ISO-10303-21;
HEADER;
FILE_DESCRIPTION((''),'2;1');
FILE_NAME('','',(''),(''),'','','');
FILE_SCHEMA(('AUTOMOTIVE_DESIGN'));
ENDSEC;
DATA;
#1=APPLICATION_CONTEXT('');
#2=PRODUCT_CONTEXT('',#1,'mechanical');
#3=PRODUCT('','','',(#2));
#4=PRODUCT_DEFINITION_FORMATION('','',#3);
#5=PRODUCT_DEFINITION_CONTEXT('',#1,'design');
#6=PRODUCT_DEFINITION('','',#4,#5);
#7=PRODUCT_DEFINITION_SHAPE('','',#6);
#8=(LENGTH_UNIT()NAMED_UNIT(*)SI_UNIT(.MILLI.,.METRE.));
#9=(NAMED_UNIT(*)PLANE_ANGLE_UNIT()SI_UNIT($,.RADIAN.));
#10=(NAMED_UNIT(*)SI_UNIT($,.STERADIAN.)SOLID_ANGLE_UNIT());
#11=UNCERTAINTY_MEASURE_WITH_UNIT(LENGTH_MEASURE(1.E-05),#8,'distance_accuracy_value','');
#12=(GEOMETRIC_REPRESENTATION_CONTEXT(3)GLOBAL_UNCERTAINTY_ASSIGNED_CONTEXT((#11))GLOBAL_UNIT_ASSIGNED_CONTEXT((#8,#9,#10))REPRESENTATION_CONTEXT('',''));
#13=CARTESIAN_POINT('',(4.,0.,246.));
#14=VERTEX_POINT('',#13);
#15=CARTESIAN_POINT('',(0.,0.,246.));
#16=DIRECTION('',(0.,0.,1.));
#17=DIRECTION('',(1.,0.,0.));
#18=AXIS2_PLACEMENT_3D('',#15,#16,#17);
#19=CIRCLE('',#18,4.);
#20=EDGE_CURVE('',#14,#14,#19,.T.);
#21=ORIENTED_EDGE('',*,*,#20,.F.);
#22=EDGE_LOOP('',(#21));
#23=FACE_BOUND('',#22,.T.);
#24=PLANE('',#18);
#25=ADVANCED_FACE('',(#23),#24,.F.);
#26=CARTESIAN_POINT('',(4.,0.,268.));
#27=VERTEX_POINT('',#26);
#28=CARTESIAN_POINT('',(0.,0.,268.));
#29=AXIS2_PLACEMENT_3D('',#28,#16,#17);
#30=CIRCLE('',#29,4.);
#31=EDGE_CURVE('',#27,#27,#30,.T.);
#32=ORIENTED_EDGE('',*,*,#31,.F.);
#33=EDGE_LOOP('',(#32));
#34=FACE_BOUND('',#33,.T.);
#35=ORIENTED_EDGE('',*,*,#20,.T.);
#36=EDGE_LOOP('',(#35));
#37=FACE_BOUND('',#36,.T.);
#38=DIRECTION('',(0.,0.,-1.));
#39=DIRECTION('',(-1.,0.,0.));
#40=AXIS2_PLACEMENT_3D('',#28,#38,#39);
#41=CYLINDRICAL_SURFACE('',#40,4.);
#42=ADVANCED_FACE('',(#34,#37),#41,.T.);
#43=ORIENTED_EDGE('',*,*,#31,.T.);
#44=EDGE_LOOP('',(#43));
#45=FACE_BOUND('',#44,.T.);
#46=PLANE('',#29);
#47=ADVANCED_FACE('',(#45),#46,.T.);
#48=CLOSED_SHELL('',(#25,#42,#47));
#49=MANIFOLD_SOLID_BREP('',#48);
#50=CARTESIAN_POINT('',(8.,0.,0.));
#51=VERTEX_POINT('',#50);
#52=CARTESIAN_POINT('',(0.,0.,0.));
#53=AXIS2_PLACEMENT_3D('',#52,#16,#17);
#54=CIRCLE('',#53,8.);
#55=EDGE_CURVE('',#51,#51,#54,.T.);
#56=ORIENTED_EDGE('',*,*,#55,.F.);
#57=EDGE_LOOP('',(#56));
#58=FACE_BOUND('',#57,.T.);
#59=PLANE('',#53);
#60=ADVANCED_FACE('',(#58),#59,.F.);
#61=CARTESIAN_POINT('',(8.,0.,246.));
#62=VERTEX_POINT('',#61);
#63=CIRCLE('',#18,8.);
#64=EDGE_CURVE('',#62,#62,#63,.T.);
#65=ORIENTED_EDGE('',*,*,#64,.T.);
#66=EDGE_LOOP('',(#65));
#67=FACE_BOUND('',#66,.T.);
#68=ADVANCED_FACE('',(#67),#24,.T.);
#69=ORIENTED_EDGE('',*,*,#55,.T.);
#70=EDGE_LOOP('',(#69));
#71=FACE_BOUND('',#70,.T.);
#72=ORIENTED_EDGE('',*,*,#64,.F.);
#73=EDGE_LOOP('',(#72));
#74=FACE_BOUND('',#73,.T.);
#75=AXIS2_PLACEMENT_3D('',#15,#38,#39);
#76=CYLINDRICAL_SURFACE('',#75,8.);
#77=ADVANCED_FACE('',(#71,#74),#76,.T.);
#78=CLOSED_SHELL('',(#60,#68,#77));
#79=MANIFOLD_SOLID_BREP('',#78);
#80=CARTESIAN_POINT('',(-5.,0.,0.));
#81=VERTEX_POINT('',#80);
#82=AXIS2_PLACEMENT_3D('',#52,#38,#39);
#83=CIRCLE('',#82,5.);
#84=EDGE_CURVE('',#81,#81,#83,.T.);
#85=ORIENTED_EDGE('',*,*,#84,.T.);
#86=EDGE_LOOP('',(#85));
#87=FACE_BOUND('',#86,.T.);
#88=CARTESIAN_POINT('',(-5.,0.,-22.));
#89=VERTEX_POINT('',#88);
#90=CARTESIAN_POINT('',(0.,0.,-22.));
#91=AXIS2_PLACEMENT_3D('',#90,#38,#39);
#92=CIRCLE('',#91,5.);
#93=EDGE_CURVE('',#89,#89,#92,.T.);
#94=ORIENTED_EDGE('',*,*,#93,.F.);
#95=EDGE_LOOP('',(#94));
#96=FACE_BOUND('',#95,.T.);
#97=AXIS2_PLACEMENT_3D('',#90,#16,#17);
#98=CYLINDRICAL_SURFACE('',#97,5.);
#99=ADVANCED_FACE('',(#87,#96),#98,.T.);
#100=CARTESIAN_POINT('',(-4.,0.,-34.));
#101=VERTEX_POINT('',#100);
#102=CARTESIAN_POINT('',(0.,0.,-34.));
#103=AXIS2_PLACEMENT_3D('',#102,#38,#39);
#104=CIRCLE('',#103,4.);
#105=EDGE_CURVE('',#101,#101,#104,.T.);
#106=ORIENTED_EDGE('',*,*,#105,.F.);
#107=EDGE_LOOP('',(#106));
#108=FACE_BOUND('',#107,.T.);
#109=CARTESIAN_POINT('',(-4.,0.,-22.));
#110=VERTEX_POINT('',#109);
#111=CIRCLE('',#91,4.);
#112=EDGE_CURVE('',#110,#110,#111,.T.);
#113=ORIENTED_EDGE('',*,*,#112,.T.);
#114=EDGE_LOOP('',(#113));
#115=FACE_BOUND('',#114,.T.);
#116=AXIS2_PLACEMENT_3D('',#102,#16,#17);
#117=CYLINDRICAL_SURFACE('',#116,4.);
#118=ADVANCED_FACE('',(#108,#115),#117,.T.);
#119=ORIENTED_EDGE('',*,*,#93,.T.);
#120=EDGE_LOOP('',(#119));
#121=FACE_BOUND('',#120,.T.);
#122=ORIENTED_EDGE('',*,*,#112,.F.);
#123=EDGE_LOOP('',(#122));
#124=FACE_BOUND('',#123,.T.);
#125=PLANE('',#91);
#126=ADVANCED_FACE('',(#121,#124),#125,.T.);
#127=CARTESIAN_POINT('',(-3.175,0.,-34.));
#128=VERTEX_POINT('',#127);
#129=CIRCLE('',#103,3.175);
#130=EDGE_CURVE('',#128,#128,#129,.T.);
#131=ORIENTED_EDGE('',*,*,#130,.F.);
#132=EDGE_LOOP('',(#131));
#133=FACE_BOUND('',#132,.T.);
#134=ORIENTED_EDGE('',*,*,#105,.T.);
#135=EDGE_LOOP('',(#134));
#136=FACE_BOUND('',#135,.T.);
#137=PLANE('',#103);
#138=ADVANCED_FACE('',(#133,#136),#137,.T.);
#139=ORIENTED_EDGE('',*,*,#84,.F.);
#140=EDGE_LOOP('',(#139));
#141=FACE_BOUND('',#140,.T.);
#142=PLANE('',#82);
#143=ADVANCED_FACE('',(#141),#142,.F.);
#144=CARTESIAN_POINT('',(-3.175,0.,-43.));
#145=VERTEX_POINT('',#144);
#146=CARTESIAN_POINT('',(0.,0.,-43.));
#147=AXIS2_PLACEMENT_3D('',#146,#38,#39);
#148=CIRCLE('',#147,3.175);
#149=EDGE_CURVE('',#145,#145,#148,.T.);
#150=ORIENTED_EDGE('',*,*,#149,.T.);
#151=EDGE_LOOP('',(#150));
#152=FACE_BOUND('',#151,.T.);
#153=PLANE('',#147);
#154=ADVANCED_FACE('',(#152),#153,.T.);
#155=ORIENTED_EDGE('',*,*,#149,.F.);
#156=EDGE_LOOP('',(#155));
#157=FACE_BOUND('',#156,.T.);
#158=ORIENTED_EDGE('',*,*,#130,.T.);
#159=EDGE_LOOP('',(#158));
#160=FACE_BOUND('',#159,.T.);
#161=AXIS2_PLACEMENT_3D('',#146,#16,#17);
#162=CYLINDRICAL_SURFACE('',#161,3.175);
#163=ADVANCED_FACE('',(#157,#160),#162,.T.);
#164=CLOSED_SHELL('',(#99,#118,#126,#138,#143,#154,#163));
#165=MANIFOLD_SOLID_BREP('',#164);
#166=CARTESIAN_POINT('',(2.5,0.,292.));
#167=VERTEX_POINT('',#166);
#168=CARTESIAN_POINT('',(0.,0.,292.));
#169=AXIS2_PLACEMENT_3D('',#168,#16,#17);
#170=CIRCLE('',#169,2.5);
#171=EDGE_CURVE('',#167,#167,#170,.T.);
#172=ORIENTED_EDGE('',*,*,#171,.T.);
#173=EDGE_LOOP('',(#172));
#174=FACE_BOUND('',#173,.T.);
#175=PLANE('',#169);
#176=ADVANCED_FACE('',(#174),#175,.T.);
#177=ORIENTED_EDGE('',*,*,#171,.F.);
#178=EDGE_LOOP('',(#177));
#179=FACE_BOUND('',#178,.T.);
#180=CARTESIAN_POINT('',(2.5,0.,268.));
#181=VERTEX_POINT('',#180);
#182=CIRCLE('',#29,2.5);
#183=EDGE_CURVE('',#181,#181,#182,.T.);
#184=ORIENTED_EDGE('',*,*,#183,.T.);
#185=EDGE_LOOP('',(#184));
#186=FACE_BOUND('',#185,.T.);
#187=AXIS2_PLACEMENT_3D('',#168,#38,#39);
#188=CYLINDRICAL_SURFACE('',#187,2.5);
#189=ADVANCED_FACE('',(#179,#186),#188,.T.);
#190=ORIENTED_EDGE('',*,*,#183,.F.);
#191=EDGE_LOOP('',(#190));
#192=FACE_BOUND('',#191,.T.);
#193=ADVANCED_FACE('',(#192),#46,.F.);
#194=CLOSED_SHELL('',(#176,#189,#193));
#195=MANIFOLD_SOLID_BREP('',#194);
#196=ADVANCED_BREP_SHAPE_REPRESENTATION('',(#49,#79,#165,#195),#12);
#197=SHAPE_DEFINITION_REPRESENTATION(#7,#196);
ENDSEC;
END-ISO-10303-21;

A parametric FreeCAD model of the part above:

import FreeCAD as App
import Part
import Sketcher
Q = App.Units.Quantity

doc = App.newDocument("Part")
body = doc.addObject("PartDesign::Body", "Body")

sketch1 = doc.addObject("Sketcher::SketchObject", "Sketch")
body.addObject(sketch1)
sketch1.AttachmentSupport = (doc.XY_Plane, [""])
sketch1.MapMode = "FlatFace"
sketch1.addGeometry(Part.Circle(App.Vector(0, 0, 0), App.Vector(0, 0, 1), 8), False)
sketch1.addConstraint([
    Sketcher.Constraint("Coincident", 0, 3, -1, 1),
    Sketcher.Constraint("Diameter", 0, Q("16 mm")),
])
pad1 = doc.addObject("PartDesign::Pad", "Pad")
body.addObject(pad1)
pad1.Profile = sketch1
pad1.Length = 246
body2 = doc.addObject("PartDesign::Body", "Body001")

sketch2 = doc.addObject("Sketcher::SketchObject", "Sketch001")
body2.addObject(sketch2)
sketch2.AttachmentSupport = (doc.getObject("XY_Plane001"), [""])
sketch2.MapMode = "FlatFace"
sketch2.AttachmentOffset = App.Placement(App.Vector(0, 0, 246), App.Rotation())
sketch2.addGeometry(Part.Circle(App.Vector(0, 0, 0), App.Vector(0, 0, 1), 4), False)
sketch2.addConstraint([
    Sketcher.Constraint("Coincident", 0, 3, -1, 1),
    Sketcher.Constraint("Diameter", 0, Q("8 mm")),
])
pad2 = doc.addObject("PartDesign::Pad", "Pad001")
body2.addObject(pad2)
pad2.Profile = sketch2
pad2.Length = 22
body3 = doc.addObject("PartDesign::Body", "Body002")

sketch3 = doc.addObject("Sketcher::SketchObject", "Sketch002")
body3.addObject(sketch3)
sketch3.AttachmentSupport = (doc.getObject("XY_Plane002"), [""])
sketch3.MapMode = "FlatFace"
sketch3.addGeometry(Part.Circle(App.Vector(0, 0, 0), App.Vector(0, 0, 1), 5), False)
sketch3.addConstraint([
    Sketcher.Constraint("Coincident", 0, 3, -1, 1),
    Sketcher.Constraint("Diameter", 0, Q("10 mm")),
])
pad3 = doc.addObject("PartDesign::Pad", "Pad002")
body3.addObject(pad3)
pad3.Profile = sketch3
pad3.Length = 22
pad3.Reversed = True

sketch4 = doc.addObject("Sketcher::SketchObject", "Sketch003")
body3.addObject(sketch4)
sketch4.AttachmentSupport = (doc.getObject("XY_Plane002"), [""])
sketch4.MapMode = "FlatFace"
sketch4.AttachmentOffset = App.Placement(App.Vector(0, 0, -22), App.Rotation())
sketch4.addGeometry(Part.Circle(App.Vector(0, 0, 0), App.Vector(0, 0, 1), 4), False)
sketch4.addConstraint([
    Sketcher.Constraint("Coincident", 0, 3, -1, 1),
    Sketcher.Constraint("Diameter", 0, Q("8 mm")),
])
pad4 = doc.addObject("PartDesign::Pad", "Pad003")
body3.addObject(pad4)
pad4.Profile = sketch4
pad4.Length = 12
pad4.Reversed = True

sketch5 = doc.addObject("Sketcher::SketchObject", "Sketch004")
body3.addObject(sketch5)
sketch5.AttachmentSupport = (doc.getObject("XY_Plane002"), [""])
sketch5.MapMode = "FlatFace"
sketch5.AttachmentOffset = App.Placement(App.Vector(0, 0, -34), App.Rotation())
sketch5.addGeometry(Part.Circle(App.Vector(0, 0, 0), App.Vector(0, 0, 1), 3.2), False)
sketch5.addConstraint([
    Sketcher.Constraint("Coincident", 0, 3, -1, 1),
    Sketcher.Constraint("Diameter", 0, Q("6.35 mm")),
])
pad5 = doc.addObject("PartDesign::Pad", "Pad004")
body3.addObject(pad5)
pad5.Profile = sketch5
pad5.Length = 9
pad5.Reversed = True
body4 = doc.addObject("PartDesign::Body", "Body003")

sketch6 = doc.addObject("Sketcher::SketchObject", "Sketch005")
body4.addObject(sketch6)
sketch6.AttachmentSupport = (doc.getObject("XY_Plane003"), [""])
sketch6.MapMode = "FlatFace"
sketch6.AttachmentOffset = App.Placement(App.Vector(0, 0, 268), App.Rotation())
sketch6.addGeometry(Part.Circle(App.Vector(0, 0, 0), App.Vector(0, 0, 1), 2.5), False)
sketch6.addConstraint([
    Sketcher.Constraint("Coincident", 0, 3, -1, 1),
    Sketcher.Constraint("Diameter", 0, Q("5 mm")),
])
pad6 = doc.addObject("PartDesign::Pad", "Pad005")
body4.addObject(pad6)
pad6.Profile = sketch6
pad6.Length = 24

doc.recompute()
